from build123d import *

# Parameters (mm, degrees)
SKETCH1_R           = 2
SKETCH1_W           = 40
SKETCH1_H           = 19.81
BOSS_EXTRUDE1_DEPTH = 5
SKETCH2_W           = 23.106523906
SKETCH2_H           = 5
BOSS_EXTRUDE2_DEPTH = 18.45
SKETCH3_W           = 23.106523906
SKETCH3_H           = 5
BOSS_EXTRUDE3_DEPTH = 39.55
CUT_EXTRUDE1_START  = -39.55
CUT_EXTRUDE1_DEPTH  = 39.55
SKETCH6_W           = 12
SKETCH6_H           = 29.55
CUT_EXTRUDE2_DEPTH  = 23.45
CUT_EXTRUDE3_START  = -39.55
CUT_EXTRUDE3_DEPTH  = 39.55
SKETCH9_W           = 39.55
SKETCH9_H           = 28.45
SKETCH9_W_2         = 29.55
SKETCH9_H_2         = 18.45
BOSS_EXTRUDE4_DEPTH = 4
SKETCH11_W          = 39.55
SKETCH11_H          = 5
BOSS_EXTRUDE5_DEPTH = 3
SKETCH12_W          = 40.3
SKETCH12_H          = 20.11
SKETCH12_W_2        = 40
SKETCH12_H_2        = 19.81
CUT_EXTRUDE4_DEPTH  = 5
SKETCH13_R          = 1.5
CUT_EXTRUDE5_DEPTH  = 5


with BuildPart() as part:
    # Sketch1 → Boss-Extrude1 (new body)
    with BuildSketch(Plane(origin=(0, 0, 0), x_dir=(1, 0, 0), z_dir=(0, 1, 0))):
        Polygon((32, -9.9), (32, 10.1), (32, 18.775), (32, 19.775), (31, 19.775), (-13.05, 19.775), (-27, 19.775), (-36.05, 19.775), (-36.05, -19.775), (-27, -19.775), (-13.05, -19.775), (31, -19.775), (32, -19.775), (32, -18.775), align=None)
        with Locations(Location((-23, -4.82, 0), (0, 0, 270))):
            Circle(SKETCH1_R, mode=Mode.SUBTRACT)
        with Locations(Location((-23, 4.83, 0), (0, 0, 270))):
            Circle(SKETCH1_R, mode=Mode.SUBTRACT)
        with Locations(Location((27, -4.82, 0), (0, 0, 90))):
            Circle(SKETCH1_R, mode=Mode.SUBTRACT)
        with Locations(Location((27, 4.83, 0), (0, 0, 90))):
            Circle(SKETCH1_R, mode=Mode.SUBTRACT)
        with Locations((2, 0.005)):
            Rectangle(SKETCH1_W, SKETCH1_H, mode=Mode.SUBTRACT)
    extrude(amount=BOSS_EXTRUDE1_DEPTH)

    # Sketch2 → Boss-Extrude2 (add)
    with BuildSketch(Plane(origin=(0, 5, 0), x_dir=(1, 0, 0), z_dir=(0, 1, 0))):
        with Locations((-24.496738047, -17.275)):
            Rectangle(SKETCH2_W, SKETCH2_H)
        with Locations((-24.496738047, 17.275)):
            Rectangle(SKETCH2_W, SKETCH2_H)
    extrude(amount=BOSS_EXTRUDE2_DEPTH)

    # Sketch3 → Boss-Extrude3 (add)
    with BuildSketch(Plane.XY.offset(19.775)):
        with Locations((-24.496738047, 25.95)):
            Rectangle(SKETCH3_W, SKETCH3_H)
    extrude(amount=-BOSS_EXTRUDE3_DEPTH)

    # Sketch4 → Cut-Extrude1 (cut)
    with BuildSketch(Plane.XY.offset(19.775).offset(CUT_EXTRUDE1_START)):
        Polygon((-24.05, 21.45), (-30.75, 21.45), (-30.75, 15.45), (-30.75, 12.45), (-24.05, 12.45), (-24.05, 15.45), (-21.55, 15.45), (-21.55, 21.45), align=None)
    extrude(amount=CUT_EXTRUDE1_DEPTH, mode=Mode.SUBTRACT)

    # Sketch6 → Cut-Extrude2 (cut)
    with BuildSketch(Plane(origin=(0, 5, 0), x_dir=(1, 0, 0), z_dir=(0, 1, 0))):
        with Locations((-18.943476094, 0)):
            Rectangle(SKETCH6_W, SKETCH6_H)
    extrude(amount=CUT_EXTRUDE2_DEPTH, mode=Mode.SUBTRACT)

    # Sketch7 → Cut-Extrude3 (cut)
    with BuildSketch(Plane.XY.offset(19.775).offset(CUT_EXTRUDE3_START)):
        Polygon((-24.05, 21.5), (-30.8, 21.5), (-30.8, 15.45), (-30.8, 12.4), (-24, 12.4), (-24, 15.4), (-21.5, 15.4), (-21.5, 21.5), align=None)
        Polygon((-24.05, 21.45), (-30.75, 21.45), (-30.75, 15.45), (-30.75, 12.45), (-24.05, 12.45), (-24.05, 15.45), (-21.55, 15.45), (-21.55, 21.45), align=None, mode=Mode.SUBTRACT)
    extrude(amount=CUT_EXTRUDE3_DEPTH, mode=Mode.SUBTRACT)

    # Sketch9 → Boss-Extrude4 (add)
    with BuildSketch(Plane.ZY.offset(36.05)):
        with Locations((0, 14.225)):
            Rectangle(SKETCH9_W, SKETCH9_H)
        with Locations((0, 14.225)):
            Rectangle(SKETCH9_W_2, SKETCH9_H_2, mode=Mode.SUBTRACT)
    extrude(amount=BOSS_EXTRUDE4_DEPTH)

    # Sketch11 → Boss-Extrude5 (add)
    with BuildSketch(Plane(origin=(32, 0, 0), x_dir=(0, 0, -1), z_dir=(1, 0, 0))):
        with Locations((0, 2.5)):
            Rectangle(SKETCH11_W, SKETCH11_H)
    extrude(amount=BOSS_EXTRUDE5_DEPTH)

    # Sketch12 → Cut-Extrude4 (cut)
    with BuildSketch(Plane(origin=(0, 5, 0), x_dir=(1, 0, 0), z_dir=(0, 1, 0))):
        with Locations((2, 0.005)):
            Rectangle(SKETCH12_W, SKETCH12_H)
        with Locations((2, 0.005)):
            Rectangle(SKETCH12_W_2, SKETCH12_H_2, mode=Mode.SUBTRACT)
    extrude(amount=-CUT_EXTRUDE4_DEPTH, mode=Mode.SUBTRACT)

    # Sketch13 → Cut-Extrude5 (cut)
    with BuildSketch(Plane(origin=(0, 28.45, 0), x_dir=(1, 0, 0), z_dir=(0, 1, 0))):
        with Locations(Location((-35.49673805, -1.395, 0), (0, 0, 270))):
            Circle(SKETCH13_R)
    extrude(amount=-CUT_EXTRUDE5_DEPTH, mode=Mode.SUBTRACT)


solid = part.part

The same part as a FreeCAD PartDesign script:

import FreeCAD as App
import Part
import Sketcher
from FreeCAD import Vector


def add_polygon(sketch, points):
    """Adds a closed chain of lines whose ends are joined by coincident constraints."""
    first, n = sketch.GeometryCount, len(points)
    for a, b in zip(points, points[1:] + points[:1]):
        sketch.addGeometry(Part.LineSegment(App.Vector(*a, 0), App.Vector(*b, 0)), False)
    for i in range(n):
        sketch.addConstraint(Sketcher.Constraint("Coincident", first + i, 2, first + (i + 1) % n, 1))

doc = App.newDocument("Part")
params = doc.addObject("Spreadsheet::Sheet", "Params")
for row, (alias, value) in enumerate([
    ("sketch1_diameter", "4 mm"),
    ("sketch1_width", "40 mm"),
    ("sketch1_width2", "68.05 mm"),
    ("sketch1_height", "39.55 mm"),
    ("sketch1_height2", "19.81 mm"),
    ("pad1_length", "5 mm"),
    ("sketch2_height", "5 mm"),
    ("pad2_length", "18.45 mm"),
    ("sketch3_height", "5 mm"),
    ("pad3_length", "39.55 mm"),
    ("sketch4_height", "9 mm"),
    ("sketch4_height2", "3 mm"),
    ("sketch4_width", "6.7 mm"),
    ("sketch4_width2", "2.5 mm"),
    ("pocket1_length", "39.55 mm"),
    ("sketch5_width", "12 mm"),
    ("sketch5_height", "29.55 mm"),
    ("pocket2_length", "23.45 mm"),
    ("sketch6_height", "3 mm"),
    ("sketch6_height2", "6 mm"),
    ("sketch6_width", "6.8 mm"),
    ("sketch6_width2", "2.5 mm"),
    ("sketch6_width3", "9.2 mm"),
    ("pocket3_length", "39.55 mm"),
    ("sketch7_width", "28.45 mm"),
    ("sketch7_height", "39.55 mm"),
    ("pad4_length", "4 mm"),
    ("sketch8_width", "5 mm"),
    ("sketch8_height", "39.55 mm"),
    ("pad5_length", "3 mm"),
    ("sketch9_width", "40 mm"),
    ("sketch9_width2", "40.3 mm"),
    ("sketch9_height", "20.11 mm"),
    ("sketch9_height2", "19.81 mm"),
    ("pocket4_length", "5 mm"),
    ("sketch10_diameter", "3 mm"),
    ("pocket5_length", "5 mm"),
], start=1):
    params.set(f"A{row}", alias)
    params.set(f"B{row}", "=" + value)
    params.setAlias(f"B{row}", alias)

body = doc.addObject("PartDesign::Body", "Body")

# Sketch on XZ plane
sketch1 = doc.addObject("Sketcher::SketchObject", "Sketch")
body.addObject(sketch1)
sketch1.AttachmentSupport = (doc.XZ_Plane, [""])
sketch1.MapMode = "FlatFace"
add_polygon(sketch1, [(32, -19.8), (-36, -19.8), (-36, 19.8), (32, 19.8)])  # lines 0-3
sketch1.addGeometry(Part.Circle(Vector(-23, 4.8, 0), Vector(0, 0, 1), 2), False)  # 4
sketch1.addGeometry(Part.Circle(Vector(27, 4.8, 0), Vector(0, 0, 1), 2), False)  # 5
sketch1.addGeometry(Part.Circle(Vector(-23, -4.8, 0), Vector(0, 0, 1), 2), False)  # 6
add_polygon(sketch1, [(22, 9.9), (-18, 9.9), (-18, -9.9), (22, -9.9)])  # lines 7-10
sketch1.addGeometry(Part.Circle(Vector(27, -4.8, 0), Vector(0, 0, 1), 2), False)  # 11
sketch1.addConstraint([
    Sketcher.Constraint("Horizontal", 0),
    Sketcher.Constraint("Vertical", 1),
    Sketcher.Constraint("Horizontal", 2),
    Sketcher.Constraint("Vertical", 3),
    Sketcher.Constraint("Horizontal", 7),
    Sketcher.Constraint("Vertical", 8),
    Sketcher.Constraint("Horizontal", 9),
    Sketcher.Constraint("Vertical", 10),
    Sketcher.Constraint("Equal", 4, 5),
    Sketcher.Constraint("Equal", 5, 6),
    Sketcher.Constraint("Equal", 6, 11),
    Sketcher.Constraint("Horizontal", 4, 3, 5, 3),
    Sketcher.Constraint("Horizontal", 6, 3, 11, 3),
    Sketcher.Constraint("Vertical", 4, 3, 6, 3),
    Sketcher.Constraint("Vertical", 5, 3, 11, 3),
    Sketcher.Constraint("Diameter", 4, 4.0),
    Sketcher.Constraint("DistanceX", 7, 2, 7, 1, 40.0),
    Sketcher.Constraint("DistanceX", 4, 3, -1, 1, 23.0),
    Sketcher.Constraint("DistanceX", -1, 1, 5, 3, 27.0),
    Sketcher.Constraint("DistanceX", -1, 1, 2, 2, 32.0),
    Sketcher.Constraint("DistanceX", 7, 2, -1, 1, 18.0),
    Sketcher.Constraint("DistanceX", 0, 2, 0, 1, 68.05),
    Sketcher.Constraint("DistanceY", 1, 1, 1, 2, 39.55),
    Sketcher.Constraint("DistanceY", 8, 2, 8, 1, 19.81),
    Sketcher.Constraint("DistanceY", -1, 1, 7, 2, 9.9),
    Sketcher.Constraint("DistanceY", -1, 1, 4, 3, 4.82),
    Sketcher.Constraint("DistanceY", 6, 3, -1, 1, 4.83),
    Sketcher.Constraint("DistanceY", 0, 2, -1, 1, 19.775),
])
sketch1.setExpression("Constraints[23]", "Params.sketch1_diameter")
sketch1.setExpression("Constraints[24]", "Params.sketch1_width")
sketch1.setExpression("Constraints[29]", "Params.sketch1_width2")
sketch1.setExpression("Constraints[30]", "Params.sketch1_height")
sketch1.setExpression("Constraints[31]", "Params.sketch1_height2")
pad1 = doc.addObject("PartDesign::Pad", "Pad")
body.addObject(pad1)
pad1.Profile = sketch1
pad1.setExpression("Length", "Params.pad1_length")
pad1.Reversed = True

# Sketch on XZ plane
sketch2 = doc.addObject("Sketcher::SketchObject", "Sketch001")
body.addObject(sketch2)
sketch2.AttachmentSupport = (doc.XZ_Plane, [""])
sketch2.MapMode = "FlatFace"
sketch2.AttachmentOffset = App.Placement(Vector(0, 0, -5), App.Rotation())
add_polygon(sketch2, [(-36, 14.8), (-36, 19.8), (-12.9, 19.8), (-12.9, 14.8)])  # lines 0-3
add_polygon(sketch2, [(-36, -19.8), (-36, -14.8), (-12.9, -14.8), (-12.9, -19.8)])  # lines 4-7
sketch2.addConstraint([
    Sketcher.Constraint("Vertical", 0),
    Sketcher.Constraint("Horizontal", 1),
    Sketcher.Constraint("Vertical", 2),
    Sketcher.Constraint("Horizontal", 3),
    Sketcher.Constraint("Vertical", 4),
    Sketcher.Constraint("Horizontal", 5),
    Sketcher.Constraint("Vertical", 6),
    Sketcher.Constraint("Horizontal", 7),
    Sketcher.Constraint("Symmetric", 3, 2, 4, 2, -1),
    Sketcher.Constraint("Symmetric", 1, 2, 6, 2, -1),
    Sketcher.Constraint("DistanceY", 0, 1, 0, 2, 5.0),
    Sketcher.Constraint("DistanceX", 0, 2, -1, 1, 36.05),
    Sketcher.Constraint("DistanceY", 4, 2, 3, 2, 29.55),
    Sketcher.Constraint("DistanceX", 1, 1, 1, 2, 23.106524),
])
sketch2.setExpression("Constraints[18]", "Params.sketch2_height")
pad2 = doc.addObject("PartDesign::Pad", "Pad001")
body.addObject(pad2)
pad2.Profile = sketch2
pad2.setExpression("Length", "Params.pad2_length")
pad2.Reversed = True

# Sketch on XY plane
sketch3 = doc.addObject("Sketcher::SketchObject", "Sketch002")
body.addObject(sketch3)
sketch3.AttachmentSupport = (doc.XY_Plane, [""])
sketch3.MapMode = "FlatFace"
sketch3.AttachmentOffset = App.Placement(Vector(0, 0, 19.775), App.Rotation())
add_polygon(sketch3, [(-36, 28), (-36, 23), (-13, 23), (-13, 28)])  # lines 0-3
sketch3.addConstraint([
    Sketcher.Constraint("Vertical", 0),
    Sketcher.Constraint("Horizontal", 1),
    Sketcher.Constraint("Vertical", 2),
    Sketcher.Constraint("Horizontal", 3),
    Sketcher.Constraint("DistanceY", 0, 2, 0, 1, 5.0),
    Sketcher.Constraint("DistanceX", 0, 2, -1, 1, 36.05),
    Sketcher.Constraint("DistanceY", -1, 1, 0, 2, 23.45),
    Sketcher.Constraint("DistanceX", 1, 1, 1, 2, 23.106524),
])
sketch3.setExpression("Constraints[8]", "Params.sketch3_height")
pad3 = doc.addObject("PartDesign::Pad", "Pad002")
body.addObject(pad3)
pad3.Profile = sketch3
pad3.setExpression("Length", "Params.pad3_length")
pad3.Reversed = True

# Sketch on XY plane
sketch4 = doc.addObject("Sketcher::SketchObject", "Sketch003")
body.addObject(sketch4)
sketch4.AttachmentSupport = (doc.XY_Plane, [""])
sketch4.MapMode = "FlatFace"
sketch4.AttachmentOffset = App.Placement(Vector(0, 0, -19.775), App.Rotation())
add_polygon(sketch4, [(-30.8, 21.4), (-30.8, 12.4), (-24.1, 12.4), (-24.1, 15.4), (-21.6, 15.4), (-21.6, 21.4)])  # lines 0-5
sketch4.addConstraint([
    Sketcher.Constraint("Vertical", 0),
    Sketcher.Constraint("Horizontal", 1),
    Sketcher.Constraint("Vertical", 2),
    Sketcher.Constraint("Horizontal", 3),
    Sketcher.Constraint("Vertical", 4),
    Sketcher.Constraint("Horizontal", 5),
    Sketcher.Constraint("DistanceY", 0, 2, 0, 1, 9.0),
    Sketcher.Constraint("DistanceY", 2, 1, 2, 2, 3.0),
    Sketcher.Constraint("DistanceX", 1, 1, 1, 2, 6.7),
    Sketcher.Constraint("DistanceX", 3, 1, 3, 2, 2.5),
    Sketcher.Constraint("DistanceX", 0, 2, -1, 1, 30.75),
    Sketcher.Constraint("DistanceY", -1, 1, 0, 2, 12.45),
])
sketch4.setExpression("Constraints[12]", "Params.sketch4_height")
sketch4.setExpression("Constraints[13]", "Params.sketch4_height2")
sketch4.setExpression("Constraints[14]", "Params.sketch4_width")
sketch4.setExpression("Constraints[15]", "Params.sketch4_width2")
pocket1 = doc.addObject("PartDesign::Pocket", "Pocket")
body.addObject(pocket1)
pocket1.Profile = sketch4
pocket1.setExpression("Length", "Params.pocket1_length")
pocket1.Reversed = True

# Sketch on XZ plane
sketch5 = doc.addObject("Sketcher::SketchObject", "Sketch004")
body.addObject(sketch5)
sketch5.AttachmentSupport = (doc.XZ_Plane, [""])
sketch5.MapMode = "FlatFace"
sketch5.AttachmentOffset = App.Placement(Vector(0, 0, -5), App.Rotation())
add_polygon(sketch5, [(-25, -15), (-25, 15), (-13, 15), (-13, -15)])  # lines 0-3
sketch5.addConstraint([
    Sketcher.Constraint("Vertical", 0),
    Sketcher.Constraint("Horizontal", 1),
    Sketcher.Constraint("Vertical", 2),
    Sketcher.Constraint("Horizontal", 3),
    Sketcher.Constraint("DistanceX", 1, 1, 1, 2, 12.0),
    Sketcher.Constraint("DistanceY", 0, 1, 0, 2, 29.55),
    Sketcher.Constraint("DistanceY", -1, 1, 0, 2, 14.775),
    Sketcher.Constraint("DistanceX", 0, 2, -1, 1, 24.943476),
])
sketch5.setExpression("Constraints[8]", "Params.sketch5_width")
sketch5.setExpression("Constraints[9]", "Params.sketch5_height")
pocket2 = doc.addObject("PartDesign::Pocket", "Pocket001")
body.addObject(pocket2)
pocket2.Profile = sketch5
pocket2.setExpression("Length", "Params.pocket2_length")

# Sketch on XY plane
sketch6 = doc.addObject("Sketcher::SketchObject", "Sketch005")
body.addObject(sketch6)
sketch6.AttachmentSupport = (doc.XY_Plane, [""])
sketch6.MapMode = "FlatFace"
sketch6.AttachmentOffset = App.Placement(Vector(0, 0, -19.775), App.Rotation())
add_polygon(sketch6, [(-30.8, 21.5), (-30.8, 12.4), (-24, 12.4), (-24, 15.4), (-21.5, 15.4), (-21.5, 21.5)])  # lines 0-5
add_polygon(sketch6, [(-30.8, 21.4), (-21.6, 21.4), (-21.6, 15.4), (-24.1, 15.4), (-24.1, 12.4), (-30.8, 12.4)])  # lines 6-11
sketch6.addConstraint([
    Sketcher.Constraint("Vertical", 0),
    Sketcher.Constraint("Horizontal", 1),
    Sketcher.Constraint("Vertical", 2),
    Sketcher.Constraint("Horizontal", 3),
    Sketcher.Constraint("Vertical", 4),
    Sketcher.Constraint("Horizontal", 5),
    Sketcher.Constraint("Horizontal", 6),
    Sketcher.Constraint("Vertical", 7),
    Sketcher.Constraint("Horizontal", 8),
    Sketcher.Constraint("Vertical", 9),
    Sketcher.Constraint("Horizontal", 10),
    Sketcher.Constraint("Vertical", 11),
    Sketcher.Constraint("Equal", 3, 8),
    Sketcher.Constraint("Equal", 2, 9),
    Sketcher.Constraint("DistanceY", 2, 1, 2, 2, 3.0),
    Sketcher.Constraint("DistanceY", 7, 2, 7, 1, 6.0),
    Sketcher.Constraint("DistanceX", 1, 1, 1, 2, 6.8),
    Sketcher.Constraint("DistanceX", 3, 1, 3, 2, 2.5),
    Sketcher.Constraint("DistanceX", 6, 1, 6, 2, 9.2),
    Sketcher.Constraint("DistanceY", 0, 2, 0, 1, 9.1),
    Sketcher.Constraint("DistanceX", 1, 2, -1, 1, 24.0),
    Sketcher.Constraint("DistanceY", -1, 1, 0, 2, 12.4),
    Sketcher.Constraint("DistanceX", 6, 2, -1, 1, 21.55),
    Sketcher.Constraint("DistanceY", -1, 1, 6, 2, 21.45),
])
sketch6.setExpression("Constraints[26]", "Params.sketch6_height")
sketch6.setExpression("Constraints[27]", "Params.sketch6_height2")
sketch6.setExpression("Constraints[28]", "Params.sketch6_width")
sketch6.setExpression("Constraints[29]", "Params.sketch6_width2")
sketch6.setExpression("Constraints[30]", "Params.sketch6_width3")
pocket3 = doc.addObject("PartDesign::Pocket", "Pocket002")
body.addObject(pocket3)
pocket3.Profile = sketch6
pocket3.setExpression("Length", "Params.pocket3_length")
pocket3.Reversed = True

# Sketch on YZ plane
sketch7 = doc.addObject("Sketcher::SketchObject", "Sketch006")
body.addObject(sketch7)
sketch7.AttachmentSupport = (doc.YZ_Plane, [""])
sketch7.MapMode = "FlatFace"
sketch7.AttachmentOffset = App.Placement(Vector(0, 0, -36.05), App.Rotation())
add_polygon(sketch7, [(28, -20), (0, -20), (0, 20), (28, 20)])  # lines 0-3
add_polygon(sketch7, [(5, 15), (5, -15), (23, -15), (23, 15)])  # lines 4-7
sketch7.addConstraint([
    Sketcher.Constraint("Horizontal", 0),
    Sketcher.Constraint("Vertical", 1),
    Sketcher.Constraint("Horizontal", 2),
    Sketcher.Constraint("Vertical", 3),
    Sketcher.Constraint("Vertical", 4),
    Sketcher.Constraint("Horizontal", 5),
    Sketcher.Constraint("Vertical", 6),
    Sketcher.Constraint("Horizontal", 7),
    Sketcher.Constraint("Symmetric", 0, 2, 1, 2, -1, 1),
    Sketcher.Constraint("DistanceX", -1, 1, 4, 2, 5.0),
    Sketcher.Constraint("DistanceY", 0, 2, 4, 2, 5.0),
    Sketcher.Constraint("DistanceX", 5, 2, 3, 2, 5.0),
    Sketcher.Constraint("DistanceY", 6, 2, 2, 2, 5.0),
    Sketcher.Constraint("DistanceX", 0, 2, 0, 1, 28.45),
    Sketcher.Constraint("DistanceY", 1, 1, 1, 2, 39.55),
])
sketch7.setExpression("Constraints[21]", "Params.sketch7_width")
sketch7.setExpression("Constraints[22]", "Params.sketch7_height")
pad4 = doc.addObject("PartDesign::Pad", "Pad003")
body.addObject(pad4)
pad4.Profile = sketch7
pad4.setExpression("Length", "Params.pad4_length")
pad4.Reversed = True

# Sketch on YZ plane
sketch8 = doc.addObject("Sketcher::SketchObject", "Sketch007")
body.addObject(sketch8)
sketch8.AttachmentSupport = (doc.YZ_Plane, [""])
sketch8.MapMode = "FlatFace"
sketch8.AttachmentOffset = App.Placement(Vector(0, 0, 32), App.Rotation())
add_polygon(sketch8, [(5, 20), (0, 20), (0, -20), (5, -20)])  # lines 0-3
sketch8.addConstraint([
    Sketcher.Constraint("Horizontal", 0),
    Sketcher.Constraint("Vertical", 1),
    Sketcher.Constraint("Horizontal", 2),
    Sketcher.Constraint("Vertical", 3),
    Sketcher.Constraint("Symmetric", 0, 2, 1, 2, -1, 1),
    Sketcher.Constraint("DistanceX", 0, 2, 0, 1, 5.0),
    Sketcher.Constraint("DistanceY", 1, 2, 1, 1, 39.55),
])
sketch8.setExpression("Constraints[9]", "Params.sketch8_width")
sketch8.setExpression("Constraints[10]", "Params.sketch8_height")
pad5 = doc.addObject("PartDesign::Pad", "Pad004")
body.addObject(pad5)
pad5.Profile = sketch8
pad5.setExpression("Length", "Params.pad5_length")

# Sketch on XZ plane
sketch9 = doc.addObject("Sketcher::SketchObject", "Sketch008")
body.addObject(sketch9)
sketch9.AttachmentSupport = (doc.XZ_Plane, [""])
sketch9.MapMode = "FlatFace"
sketch9.AttachmentOffset = App.Placement(Vector(0, 0, -5), App.Rotation())
add_polygon(sketch9, [(-18, -10), (-18, 10), (22, 10), (22, -10)])  # lines 0-3
add_polygon(sketch9, [(22, 10), (-18, 10), (-18, -10), (22, -10)])  # lines 4-7
sketch9.addConstraint([
    Sketcher.Constraint("Vertical", 0),
    Sketcher.Constraint("Horizontal", 1),
    Sketcher.Constraint("Vertical", 2),
    Sketcher.Constraint("Horizontal", 3),
    Sketcher.Constraint("Horizontal", 4),
    Sketcher.Constraint("Vertical", 5),
    Sketcher.Constraint("Horizontal", 6),
    Sketcher.Constraint("Vertical", 7),
    Sketcher.Constraint("DistanceX", 4, 2, 4, 1, 40.0),
    Sketcher.Constraint("DistanceX", 1, 1, 1, 2, 40.3),
    Sketcher.Constraint("DistanceX", 4, 2, -1, 1, 18.0),
    Sketcher.Constraint("DistanceY", 0, 1, 0, 2, 20.11),
    Sketcher.Constraint("DistanceY", 5, 2, 5, 1, 19.81),
    Sketcher.Constraint("DistanceY", -1, 1, 4, 2, 9.9),
    Sketcher.Constraint("DistanceX", 0, 2, -1, 1, 18.15),
    Sketcher.Constraint("DistanceY", -1, 1, 0, 2, 10.05),
])
sketch9.setExpression("Constraints[16]", "Params.sketch9_width")
sketch9.setExpression("Constraints[17]", "Params.sketch9_width2")
sketch9.setExpression("Constraints[19]", "Params.sketch9_height")
sketch9.setExpression("Constraints[20]", "Params.sketch9_height2")
pocket4 = doc.addObject("PartDesign::Pocket", "Pocket003")
body.addObject(pocket4)
pocket4.Profile = sketch9
pocket4.setExpression("Length", "Params.pocket4_length")
pocket4.Reversed = True

# Sketch on XZ plane
sketch10 = doc.addObject("Sketcher::SketchObject", "Sketch009")
body.addObject(sketch10)
sketch10.AttachmentSupport = (doc.XZ_Plane, [""])
sketch10.MapMode = "FlatFace"
sketch10.AttachmentOffset = App.Placement(Vector(0, 0, -28.45), App.Rotation())
sketch10.addGeometry(Part.Circle(Vector(-35.5, 1.4, 0), Vector(0, 0, 1), 1.5), False)
sketch10.addConstraint([
    Sketcher.Constraint("Diameter", 0, 3.0),
    Sketcher.Constraint("DistanceY", -1, 1, 0, 3, 1.395),
    Sketcher.Constraint("DistanceX", 0, 3, -1, 1, 35.496738),
])
sketch10.setExpression("Constraints[0]", "Params.sketch10_diameter")
pocket5 = doc.addObject("PartDesign::Pocket", "Pocket004")
body.addObject(pocket5)
pocket5.Profile = sketch10
pocket5.setExpression("Length", "Params.pocket5_length")
pocket5.Reversed = True

doc.recompute()
